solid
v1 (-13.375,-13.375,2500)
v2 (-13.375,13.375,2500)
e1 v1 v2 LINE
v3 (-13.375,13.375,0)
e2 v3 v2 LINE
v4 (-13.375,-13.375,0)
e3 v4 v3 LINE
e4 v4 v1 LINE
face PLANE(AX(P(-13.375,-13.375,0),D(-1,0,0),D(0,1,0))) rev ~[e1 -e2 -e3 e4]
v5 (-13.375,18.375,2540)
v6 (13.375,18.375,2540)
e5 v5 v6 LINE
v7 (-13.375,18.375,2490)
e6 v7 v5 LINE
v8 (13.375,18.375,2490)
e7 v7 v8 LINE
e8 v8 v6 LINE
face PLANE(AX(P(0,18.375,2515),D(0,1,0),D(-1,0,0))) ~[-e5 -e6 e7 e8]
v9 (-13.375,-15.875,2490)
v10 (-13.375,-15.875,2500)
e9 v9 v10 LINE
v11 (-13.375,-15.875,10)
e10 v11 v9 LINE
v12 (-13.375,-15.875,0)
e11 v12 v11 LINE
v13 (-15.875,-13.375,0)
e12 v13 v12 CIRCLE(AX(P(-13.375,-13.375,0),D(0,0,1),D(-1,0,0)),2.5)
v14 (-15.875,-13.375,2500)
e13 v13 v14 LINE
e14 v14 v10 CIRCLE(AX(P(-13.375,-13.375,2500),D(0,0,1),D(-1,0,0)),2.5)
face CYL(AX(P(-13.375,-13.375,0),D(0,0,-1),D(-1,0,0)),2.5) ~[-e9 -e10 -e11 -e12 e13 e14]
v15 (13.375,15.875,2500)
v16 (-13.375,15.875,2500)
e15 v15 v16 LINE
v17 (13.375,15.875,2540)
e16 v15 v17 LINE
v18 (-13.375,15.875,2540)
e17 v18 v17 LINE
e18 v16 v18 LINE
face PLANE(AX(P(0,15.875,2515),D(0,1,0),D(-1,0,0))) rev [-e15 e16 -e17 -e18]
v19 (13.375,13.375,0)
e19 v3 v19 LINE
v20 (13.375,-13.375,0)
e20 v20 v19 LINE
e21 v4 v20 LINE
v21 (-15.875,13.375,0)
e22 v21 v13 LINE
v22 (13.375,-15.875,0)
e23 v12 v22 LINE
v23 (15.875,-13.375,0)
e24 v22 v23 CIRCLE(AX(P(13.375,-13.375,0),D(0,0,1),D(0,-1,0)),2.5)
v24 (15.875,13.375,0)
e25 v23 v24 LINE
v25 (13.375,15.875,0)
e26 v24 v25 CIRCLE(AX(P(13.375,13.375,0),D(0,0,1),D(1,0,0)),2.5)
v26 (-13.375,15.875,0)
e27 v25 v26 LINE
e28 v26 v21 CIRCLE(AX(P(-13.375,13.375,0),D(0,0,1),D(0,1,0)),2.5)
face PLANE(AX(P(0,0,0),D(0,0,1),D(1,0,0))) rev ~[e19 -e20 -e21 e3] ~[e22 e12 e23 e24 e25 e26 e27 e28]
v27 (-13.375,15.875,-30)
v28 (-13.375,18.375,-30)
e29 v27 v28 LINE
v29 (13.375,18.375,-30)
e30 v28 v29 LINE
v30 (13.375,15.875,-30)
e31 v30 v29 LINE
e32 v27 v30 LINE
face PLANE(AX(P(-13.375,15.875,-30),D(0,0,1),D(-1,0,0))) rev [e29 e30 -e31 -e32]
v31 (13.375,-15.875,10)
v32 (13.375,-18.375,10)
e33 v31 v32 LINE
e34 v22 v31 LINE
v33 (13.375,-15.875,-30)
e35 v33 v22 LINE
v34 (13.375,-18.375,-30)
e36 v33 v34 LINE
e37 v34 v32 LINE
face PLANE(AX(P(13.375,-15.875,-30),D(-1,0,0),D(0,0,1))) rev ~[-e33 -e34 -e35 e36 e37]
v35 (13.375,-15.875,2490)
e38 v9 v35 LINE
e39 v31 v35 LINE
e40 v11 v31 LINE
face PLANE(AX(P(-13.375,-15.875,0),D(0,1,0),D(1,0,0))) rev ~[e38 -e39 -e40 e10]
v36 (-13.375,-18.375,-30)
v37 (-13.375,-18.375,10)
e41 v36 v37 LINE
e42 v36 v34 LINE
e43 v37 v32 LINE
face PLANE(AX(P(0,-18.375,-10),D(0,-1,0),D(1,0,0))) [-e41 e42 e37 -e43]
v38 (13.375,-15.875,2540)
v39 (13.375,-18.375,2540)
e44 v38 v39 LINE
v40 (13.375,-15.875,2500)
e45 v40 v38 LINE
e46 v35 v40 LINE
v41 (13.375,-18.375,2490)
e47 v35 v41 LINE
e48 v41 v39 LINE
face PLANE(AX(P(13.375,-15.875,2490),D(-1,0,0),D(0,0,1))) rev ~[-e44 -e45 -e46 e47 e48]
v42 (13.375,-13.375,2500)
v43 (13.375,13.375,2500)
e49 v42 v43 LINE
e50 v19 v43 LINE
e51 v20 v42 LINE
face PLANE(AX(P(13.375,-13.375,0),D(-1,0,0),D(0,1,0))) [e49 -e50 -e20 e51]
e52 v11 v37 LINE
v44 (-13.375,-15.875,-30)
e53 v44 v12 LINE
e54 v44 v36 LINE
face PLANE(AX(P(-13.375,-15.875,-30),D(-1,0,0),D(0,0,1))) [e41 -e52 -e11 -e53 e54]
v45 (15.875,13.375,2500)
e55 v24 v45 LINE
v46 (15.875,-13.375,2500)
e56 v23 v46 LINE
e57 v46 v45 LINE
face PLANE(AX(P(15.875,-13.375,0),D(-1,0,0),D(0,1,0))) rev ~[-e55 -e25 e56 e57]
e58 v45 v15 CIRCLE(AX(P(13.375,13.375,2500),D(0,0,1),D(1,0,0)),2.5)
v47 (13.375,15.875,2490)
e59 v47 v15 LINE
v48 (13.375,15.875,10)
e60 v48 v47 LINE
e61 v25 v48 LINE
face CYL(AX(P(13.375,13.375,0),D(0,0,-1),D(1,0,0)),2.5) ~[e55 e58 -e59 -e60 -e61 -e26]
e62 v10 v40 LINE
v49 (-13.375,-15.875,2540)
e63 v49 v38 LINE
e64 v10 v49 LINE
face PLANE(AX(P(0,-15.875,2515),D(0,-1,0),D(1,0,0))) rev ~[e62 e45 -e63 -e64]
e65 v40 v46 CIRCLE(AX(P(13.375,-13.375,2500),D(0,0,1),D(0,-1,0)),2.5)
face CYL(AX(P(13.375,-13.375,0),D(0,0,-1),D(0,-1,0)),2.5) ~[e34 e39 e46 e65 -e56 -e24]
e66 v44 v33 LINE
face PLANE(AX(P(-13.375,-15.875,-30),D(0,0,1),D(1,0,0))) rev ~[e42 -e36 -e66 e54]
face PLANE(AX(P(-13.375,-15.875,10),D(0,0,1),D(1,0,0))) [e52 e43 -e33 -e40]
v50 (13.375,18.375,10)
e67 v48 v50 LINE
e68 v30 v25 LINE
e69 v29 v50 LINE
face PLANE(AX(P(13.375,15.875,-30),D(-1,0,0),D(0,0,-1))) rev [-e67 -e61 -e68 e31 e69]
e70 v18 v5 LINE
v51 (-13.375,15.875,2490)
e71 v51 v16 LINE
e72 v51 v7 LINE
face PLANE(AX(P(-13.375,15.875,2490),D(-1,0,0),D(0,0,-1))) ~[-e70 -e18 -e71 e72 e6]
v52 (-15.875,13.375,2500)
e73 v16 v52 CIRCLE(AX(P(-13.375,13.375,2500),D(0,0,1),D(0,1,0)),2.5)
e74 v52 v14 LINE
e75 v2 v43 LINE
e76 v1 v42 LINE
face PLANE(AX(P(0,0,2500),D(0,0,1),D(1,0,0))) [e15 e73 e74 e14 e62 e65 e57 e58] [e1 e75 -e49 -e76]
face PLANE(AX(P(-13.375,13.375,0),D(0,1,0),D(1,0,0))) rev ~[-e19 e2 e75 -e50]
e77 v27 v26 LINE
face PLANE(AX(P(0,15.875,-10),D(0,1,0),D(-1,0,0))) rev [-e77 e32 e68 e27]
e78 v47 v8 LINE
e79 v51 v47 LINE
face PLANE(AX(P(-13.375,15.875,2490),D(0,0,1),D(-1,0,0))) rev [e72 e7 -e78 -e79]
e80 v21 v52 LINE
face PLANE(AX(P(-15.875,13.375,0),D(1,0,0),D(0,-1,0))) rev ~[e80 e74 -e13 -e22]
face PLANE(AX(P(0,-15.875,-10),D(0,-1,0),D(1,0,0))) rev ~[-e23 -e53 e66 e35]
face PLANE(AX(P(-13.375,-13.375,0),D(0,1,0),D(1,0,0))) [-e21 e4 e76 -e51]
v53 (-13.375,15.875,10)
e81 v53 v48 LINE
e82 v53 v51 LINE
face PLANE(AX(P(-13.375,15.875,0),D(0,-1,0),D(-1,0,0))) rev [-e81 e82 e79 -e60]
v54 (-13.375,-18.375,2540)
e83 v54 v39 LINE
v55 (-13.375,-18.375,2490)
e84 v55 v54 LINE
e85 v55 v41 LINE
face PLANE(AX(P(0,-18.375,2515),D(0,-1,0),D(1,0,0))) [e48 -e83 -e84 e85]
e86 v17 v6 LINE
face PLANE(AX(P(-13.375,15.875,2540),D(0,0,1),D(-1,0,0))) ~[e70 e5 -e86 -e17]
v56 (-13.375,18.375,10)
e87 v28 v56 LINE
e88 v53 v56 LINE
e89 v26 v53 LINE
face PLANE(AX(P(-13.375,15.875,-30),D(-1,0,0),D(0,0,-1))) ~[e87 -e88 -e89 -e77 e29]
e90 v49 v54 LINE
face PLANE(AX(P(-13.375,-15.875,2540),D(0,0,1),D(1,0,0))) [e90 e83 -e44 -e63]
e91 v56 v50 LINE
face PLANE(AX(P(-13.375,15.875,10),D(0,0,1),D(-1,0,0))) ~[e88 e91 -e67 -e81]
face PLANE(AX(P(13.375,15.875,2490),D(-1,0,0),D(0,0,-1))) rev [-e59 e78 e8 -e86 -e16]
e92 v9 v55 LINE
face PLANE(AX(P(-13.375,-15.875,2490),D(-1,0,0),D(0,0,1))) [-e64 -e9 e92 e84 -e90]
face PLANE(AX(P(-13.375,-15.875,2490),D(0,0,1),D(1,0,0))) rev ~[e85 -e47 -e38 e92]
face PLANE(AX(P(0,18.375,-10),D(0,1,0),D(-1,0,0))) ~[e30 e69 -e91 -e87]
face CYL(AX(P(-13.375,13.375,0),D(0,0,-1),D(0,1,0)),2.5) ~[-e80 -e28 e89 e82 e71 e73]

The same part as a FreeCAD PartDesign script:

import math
import FreeCAD as App
import Part
import Sketcher
from FreeCAD import Vector
Q = App.Units.Quantity


def add_polygon(sketch, points):
    """Adds a closed chain of lines whose ends are joined by coincident constraints."""
    first, n = sketch.GeometryCount, len(points)
    for a, b in zip(points, points[1:] + points[:1]):
        sketch.addGeometry(Part.LineSegment(App.Vector(*a, 0), App.Vector(*b, 0)), False)
    for i in range(n):
        sketch.addConstraint(Sketcher.Constraint("Coincident", first + i, 2, first + (i + 1) % n, 1))

doc = App.newDocument("Part")
body = doc.addObject("PartDesign::Body", "Body")

# Sketch on XY plane
sketch1 = doc.addObject("Sketcher::SketchObject", "Sketch")
body.addObject(sketch1)
sketch1.AttachmentSupport = (doc.XY_Plane, [""])
sketch1.MapMode = "FlatFace"
sketch1.addGeometry(Part.ArcOfCircle(Part.Circle(Vector(13.375, 13.375, 0), Vector(0, 0, 1), 2.5), math.radians(0), math.radians(90)), False)  # 0
sketch1.addGeometry(Part.LineSegment(Vector(13.375, 15.875, 0), Vector(-13.375, 15.875, 0)), False)  # 1
sketch1.addGeometry(Part.ArcOfCircle(Part.Circle(Vector(-13.375, 13.375, 0), Vector(0, 0, 1), 2.5), math.radians(90), math.radians(180)), False)  # 2
sketch1.addGeometry(Part.LineSegment(Vector(-15.875, 13.375, 0), Vector(-15.875, -13.375, 0)), False)  # 3
sketch1.addGeometry(Part.ArcOfCircle(Part.Circle(Vector(-13.375, -13.375, 0), Vector(0, 0, 1), 2.5), math.radians(180), math.radians(270)), False)  # 4
sketch1.addGeometry(Part.LineSegment(Vector(-13.375, -15.875, 0), Vector(13.375, -15.875, 0)), False)  # 5
sketch1.addGeometry(Part.ArcOfCircle(Part.Circle(Vector(13.375, -13.375, 0), Vector(0, 0, 1), 2.5), math.radians(-90), math.radians(0)), False)  # 6
sketch1.addGeometry(Part.LineSegment(Vector(15.875, -13.375, 0), Vector(15.875, 13.375, 0)), False)  # 7
add_polygon(sketch1, [(13.375, -13.375), (-13.375, -13.375), (-13.375, 13.375), (13.375, 13.375)])  # lines 8-11
sketch1.addConstraint(Sketcher.Constraint("Tangent", 0, 2, 1, 1))
sketch1.addConstraint(Sketcher.Constraint("Tangent", 1, 2, 2, 1))
sketch1.addConstraint(Sketcher.Constraint("Tangent", 2, 2, 3, 1))
sketch1.addConstraint(Sketcher.Constraint("Tangent", 3, 2, 4, 1))
sketch1.addConstraint(Sketcher.Constraint("Tangent", 4, 2, 5, 1))
sketch1.addConstraint(Sketcher.Constraint("Tangent", 5, 2, 6, 1))
sketch1.addConstraint(Sketcher.Constraint("Tangent", 6, 2, 7, 1))
sketch1.addConstraint(Sketcher.Constraint("Tangent", 7, 2, 0, 1))
sketch1.addConstraint(Sketcher.Constraint("Horizontal", 1))
sketch1.addConstraint(Sketcher.Constraint("Vertical", 3))
sketch1.addConstraint(Sketcher.Constraint("Horizontal", 5))
sketch1.addConstraint(Sketcher.Constraint("Vertical", 7))
sketch1.addConstraint(Sketcher.Constraint("Horizontal", 8))
sketch1.addConstraint(Sketcher.Constraint("Vertical", 9))
sketch1.addConstraint(Sketcher.Constraint("Horizontal", 10))
sketch1.addConstraint(Sketcher.Constraint("Vertical", 11))
sketch1.addConstraint(Sketcher.Constraint("Coincident", 8, 2, 4, 3))
sketch1.addConstraint(Sketcher.Constraint("Coincident", 9, 2, 2, 3))
sketch1.addConstraint(Sketcher.Constraint("Coincident", 10, 2, 0, 3))
sketch1.addConstraint(Sketcher.Constraint("Equal", 4, 6))
sketch1.addConstraint(Sketcher.Constraint("Symmetric", 0, 3, 4, 3, -1, 1))
sketch1.addConstraint(Sketcher.Constraint("Equal", 10, 3))
sketch1.addConstraint(Sketcher.Constraint("Radius", 0, Q("2.5 mm")))
sketch1.addConstraint(Sketcher.Constraint("DistanceX", 1, 2, 1, 1, Q("26.75 mm")))
pad1 = doc.addObject("PartDesign::Pad", "Pad")
body.addObject(pad1)
pad1.Profile = sketch1
pad1.Length = 2500

# Sketch on XZ plane
sketch2 = doc.addObject("Sketcher::SketchObject", "Sketch001")
body.addObject(sketch2)
sketch2.AttachmentSupport = (doc.XZ_Plane, [""])
sketch2.MapMode = "FlatFace"
sketch2.AttachmentOffset = App.Placement(Vector(0, 0, 15.875), App.Rotation())
add_polygon(sketch2, [(-13.375, 2540), (-13.375, 2490), (13.375, 2490), (13.375, 2540)])  # lines 0-3
add_polygon(sketch2, [(-13.375, 10), (-13.375, -30), (13.375, -30), (13.375, 10)])  # lines 4-7
sketch2.addConstraint(Sketcher.Constraint("Vertical", 0))
sketch2.addConstraint(Sketcher.Constraint("Horizontal", 1))
sketch2.addConstraint(Sketcher.Constraint("Vertical", 2))
sketch2.addConstraint(Sketcher.Constraint("Horizontal", 3))
sketch2.addConstraint(Sketcher.Constraint("Vertical", 4))
sketch2.addConstraint(Sketcher.Constraint("Horizontal", 5))
sketch2.addConstraint(Sketcher.Constraint("Vertical", 6))
sketch2.addConstraint(Sketcher.Constraint("Horizontal", 7))
sketch2.addConstraint(Sketcher.Constraint("Vertical", 3, 2, 4, 2))
sketch2.addConstraint(Sketcher.Constraint("Vertical", 2, 2, 5, 2))
sketch2.addConstraint(Sketcher.Constraint("DistanceY", 0, 2, 0, 1, Q("50 mm")))
sketch2.addConstraint(Sketcher.Constraint("DistanceY", 4, 2, 4, 1, Q("40 mm")))
sketch2.addConstraint(Sketcher.Constraint("DistanceY", -1, 1, 0, 2, Q("2490 mm")))
sketch2.addConstraint(Sketcher.Constraint("DistanceY", 4, 2, -1, 1, Q("30 mm")))
sketch2.addConstraint(Sketcher.Constraint("DistanceX", 1, 1, 1, 2, Q("26.75 mm")))
sketch2.addConstraint(Sketcher.Constraint("DistanceX", 0, 2, -1, 1, Q("13.375 mm")))
pad2 = doc.addObject("PartDesign::Pad", "Pad001")
body.addObject(pad2)
pad2.Profile = sketch2
pad2.Length = 2.5
body2 = doc.addObject("PartDesign::Body", "Body001")
doc.recompute()

body2.BaseFeature = body
doc.recompute()

mirroring = doc.addObject("Part::Mirroring", "Mirroring")
mirroring.Source = body
mirroring.Base = Vector(0, 0, 0)
mirroring.Normal = Vector(0, -1, 0)
body3 = doc.addObject("PartDesign::Body", "Body002")
body3.BaseFeature = mirroring
boolean = doc.addObject("PartDesign::Boolean", "Boolean")
body2.addObject(boolean)
boolean.Type = "Fuse"
boolean.addObjects([body3])
doc.recompute()
mirroring.Visibility = False

doc.recompute()
